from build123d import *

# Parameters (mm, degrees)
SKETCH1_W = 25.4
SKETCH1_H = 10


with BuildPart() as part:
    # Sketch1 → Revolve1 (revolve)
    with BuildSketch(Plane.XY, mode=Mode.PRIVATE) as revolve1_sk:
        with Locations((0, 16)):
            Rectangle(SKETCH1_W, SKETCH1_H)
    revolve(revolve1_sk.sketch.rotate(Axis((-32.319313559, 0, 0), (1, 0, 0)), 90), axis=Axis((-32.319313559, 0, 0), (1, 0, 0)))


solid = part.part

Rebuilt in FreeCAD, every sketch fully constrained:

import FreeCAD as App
import Part
import Sketcher

doc = App.newDocument("Part")
body = doc.addObject("PartDesign::Body", "Body")

sketch1 = body.newObject("Sketcher::SketchObject", "Sketch")
sketch1.AttachmentSupport = (doc.getObject("XY_Plane"), [""])
sketch1.MapMode = "FlatFace"
sketch1.addGeometry(Part.LineSegment(App.Vector(-13, 21, 0), App.Vector(-13, 11, 0)), False)
sketch1.addGeometry(Part.LineSegment(App.Vector(-13, 11, 0), App.Vector(13, 11, 0)), False)
sketch1.addGeometry(Part.LineSegment(App.Vector(13, 11, 0), App.Vector(13, 21, 0)), False)
sketch1.addGeometry(Part.LineSegment(App.Vector(13, 21, 0), App.Vector(-13, 21, 0)), False)
sketch1.addConstraint(Sketcher.Constraint("Coincident", 0, 2, 1, 1))
sketch1.addConstraint(Sketcher.Constraint("Coincident", 1, 2, 2, 1))
sketch1.addConstraint(Sketcher.Constraint("Coincident", 2, 2, 3, 1))
sketch1.addConstraint(Sketcher.Constraint("Coincident", 3, 2, 0, 1))
sketch1.addConstraint(Sketcher.Constraint("Vertical", 0))
sketch1.addConstraint(Sketcher.Constraint("Horizontal", 1))
sketch1.addConstraint(Sketcher.Constraint("Vertical", 2))
sketch1.addConstraint(Sketcher.Constraint("Horizontal", 3))
sketch1.addConstraint(Sketcher.Constraint("DistanceY", 0, 2, 0, 1, 10.0))
sketch1.addConstraint(Sketcher.Constraint("DistanceX", 1, 1, 1, 2, 25.4))
sketch1.addConstraint(Sketcher.Constraint("DistanceY", -1, 1, 0, 2, 11.0))
sketch1.addConstraint(Sketcher.Constraint("DistanceX", 0, 2, -1, 1, 12.7))
revolution = body.newObject("PartDesign::Revolution", "Revolution")
revolution.Profile = sketch1
revolution.ReferenceAxis = (sketch1, ["H_Axis"])
revolution.Angle = 360

doc.recompute()
